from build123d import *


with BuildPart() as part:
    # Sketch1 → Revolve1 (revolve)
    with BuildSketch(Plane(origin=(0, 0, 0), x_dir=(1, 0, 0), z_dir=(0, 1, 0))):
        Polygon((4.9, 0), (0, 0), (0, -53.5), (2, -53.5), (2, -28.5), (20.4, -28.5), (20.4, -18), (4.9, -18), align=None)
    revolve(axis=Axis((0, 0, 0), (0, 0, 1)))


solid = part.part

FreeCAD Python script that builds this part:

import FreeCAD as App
import Part
import Sketcher
from FreeCAD import Vector
Q = App.Units.Quantity

doc = App.newDocument("Part")
params = doc.addObject("Spreadsheet::Sheet", "Params")
for row, (alias, value) in enumerate([
    ("sketch1_width", "2 mm"),
    ("sketch1_height", "25 mm"),
    ("sketch1_height2", "18 mm"),
    ("sketch1_width2", "4.9 mm"),
    ("sketch1_width3", "18.4 mm"),
    ("revolution_angle", "360 deg"),
], start=1):
    params.set(f"A{row}", alias)
    params.set(f"B{row}", "=" + value)
    params.setAlias(f"B{row}", alias)

body = doc.addObject("PartDesign::Body", "Body")

sketch1 = body.newObject("Sketcher::SketchObject", "Sketch")
sketch1.AttachmentSupport = (doc.getObject("XZ_Plane"), [""])
sketch1.MapMode = "FlatFace"
sketch1.addGeometry([
    Part.LineSegment(Vector(4.9, 0, 0), Vector(0, 0, 0)),
    Part.LineSegment(Vector(0, 0, 0), Vector(0, 53.5, 0)),
    Part.LineSegment(Vector(0, 53.5, 0), Vector(2, 53.5, 0)),
    Part.LineSegment(Vector(2, 53.5, 0), Vector(2, 28.5, 0)),
    Part.LineSegment(Vector(2, 28.5, 0), Vector(20.4, 28.5, 0)),
    Part.LineSegment(Vector(20.4, 28.5, 0), Vector(20.4, 18, 0)),
    Part.LineSegment(Vector(20.4, 18, 0), Vector(4.9, 18, 0)),
    Part.LineSegment(Vector(4.9, 18, 0), Vector(4.9, 0, 0)),
], False)
sketch1.addConstraint([
    Sketcher.Constraint("Coincident", 0, 2, 1, 1),
    Sketcher.Constraint("Coincident", 1, 2, 2, 1),
    Sketcher.Constraint("Coincident", 2, 2, 3, 1),
    Sketcher.Constraint("Coincident", 3, 2, 4, 1),
    Sketcher.Constraint("Coincident", 4, 2, 5, 1),
    Sketcher.Constraint("Coincident", 5, 2, 6, 1),
    Sketcher.Constraint("Coincident", 6, 2, 7, 1),
    Sketcher.Constraint("Coincident", 7, 2, 0, 1),
    Sketcher.Constraint("Horizontal", 0),
    Sketcher.Constraint("Vertical", 1),
    Sketcher.Constraint("Horizontal", 2),
    Sketcher.Constraint("Vertical", 3),
    Sketcher.Constraint("Horizontal", 4),
    Sketcher.Constraint("Vertical", 5),
    Sketcher.Constraint("Horizontal", 6),
    Sketcher.Constraint("Vertical", 7),
    Sketcher.Constraint("Coincident", 0, 2, -1, 1),
    Sketcher.Constraint("DistanceX", 2, 1, 2, 2, Q("2 mm")),
    Sketcher.Constraint("DistanceY", 3, 2, 3, 1, Q("25 mm")),
    Sketcher.Constraint("DistanceY", 7, 2, 7, 1, Q("18 mm")),
    Sketcher.Constraint("DistanceX", 0, 2, 0, 1, Q("4.9 mm")),
    Sketcher.Constraint("DistanceX", 4, 1, 4, 2, Q("18.4 mm")),
    Sketcher.Constraint("DistanceY", 1, 1, 1, 2, Q("53.5 mm")),
])
sketch1.setExpression("Constraints[17]", "Params.sketch1_width")
sketch1.setExpression("Constraints[18]", "Params.sketch1_height")
sketch1.setExpression("Constraints[19]", "Params.sketch1_height2")
sketch1.setExpression("Constraints[20]", "Params.sketch1_width2")
sketch1.setExpression("Constraints[21]", "Params.sketch1_width3")
revolution = body.newObject("PartDesign::Revolution", "Revolution")
revolution.Profile = sketch1
revolution.ReferenceAxis = (sketch1, ["V_Axis"])
revolution.setExpression("Angle", "Params.revolution_angle")

doc.recompute()
